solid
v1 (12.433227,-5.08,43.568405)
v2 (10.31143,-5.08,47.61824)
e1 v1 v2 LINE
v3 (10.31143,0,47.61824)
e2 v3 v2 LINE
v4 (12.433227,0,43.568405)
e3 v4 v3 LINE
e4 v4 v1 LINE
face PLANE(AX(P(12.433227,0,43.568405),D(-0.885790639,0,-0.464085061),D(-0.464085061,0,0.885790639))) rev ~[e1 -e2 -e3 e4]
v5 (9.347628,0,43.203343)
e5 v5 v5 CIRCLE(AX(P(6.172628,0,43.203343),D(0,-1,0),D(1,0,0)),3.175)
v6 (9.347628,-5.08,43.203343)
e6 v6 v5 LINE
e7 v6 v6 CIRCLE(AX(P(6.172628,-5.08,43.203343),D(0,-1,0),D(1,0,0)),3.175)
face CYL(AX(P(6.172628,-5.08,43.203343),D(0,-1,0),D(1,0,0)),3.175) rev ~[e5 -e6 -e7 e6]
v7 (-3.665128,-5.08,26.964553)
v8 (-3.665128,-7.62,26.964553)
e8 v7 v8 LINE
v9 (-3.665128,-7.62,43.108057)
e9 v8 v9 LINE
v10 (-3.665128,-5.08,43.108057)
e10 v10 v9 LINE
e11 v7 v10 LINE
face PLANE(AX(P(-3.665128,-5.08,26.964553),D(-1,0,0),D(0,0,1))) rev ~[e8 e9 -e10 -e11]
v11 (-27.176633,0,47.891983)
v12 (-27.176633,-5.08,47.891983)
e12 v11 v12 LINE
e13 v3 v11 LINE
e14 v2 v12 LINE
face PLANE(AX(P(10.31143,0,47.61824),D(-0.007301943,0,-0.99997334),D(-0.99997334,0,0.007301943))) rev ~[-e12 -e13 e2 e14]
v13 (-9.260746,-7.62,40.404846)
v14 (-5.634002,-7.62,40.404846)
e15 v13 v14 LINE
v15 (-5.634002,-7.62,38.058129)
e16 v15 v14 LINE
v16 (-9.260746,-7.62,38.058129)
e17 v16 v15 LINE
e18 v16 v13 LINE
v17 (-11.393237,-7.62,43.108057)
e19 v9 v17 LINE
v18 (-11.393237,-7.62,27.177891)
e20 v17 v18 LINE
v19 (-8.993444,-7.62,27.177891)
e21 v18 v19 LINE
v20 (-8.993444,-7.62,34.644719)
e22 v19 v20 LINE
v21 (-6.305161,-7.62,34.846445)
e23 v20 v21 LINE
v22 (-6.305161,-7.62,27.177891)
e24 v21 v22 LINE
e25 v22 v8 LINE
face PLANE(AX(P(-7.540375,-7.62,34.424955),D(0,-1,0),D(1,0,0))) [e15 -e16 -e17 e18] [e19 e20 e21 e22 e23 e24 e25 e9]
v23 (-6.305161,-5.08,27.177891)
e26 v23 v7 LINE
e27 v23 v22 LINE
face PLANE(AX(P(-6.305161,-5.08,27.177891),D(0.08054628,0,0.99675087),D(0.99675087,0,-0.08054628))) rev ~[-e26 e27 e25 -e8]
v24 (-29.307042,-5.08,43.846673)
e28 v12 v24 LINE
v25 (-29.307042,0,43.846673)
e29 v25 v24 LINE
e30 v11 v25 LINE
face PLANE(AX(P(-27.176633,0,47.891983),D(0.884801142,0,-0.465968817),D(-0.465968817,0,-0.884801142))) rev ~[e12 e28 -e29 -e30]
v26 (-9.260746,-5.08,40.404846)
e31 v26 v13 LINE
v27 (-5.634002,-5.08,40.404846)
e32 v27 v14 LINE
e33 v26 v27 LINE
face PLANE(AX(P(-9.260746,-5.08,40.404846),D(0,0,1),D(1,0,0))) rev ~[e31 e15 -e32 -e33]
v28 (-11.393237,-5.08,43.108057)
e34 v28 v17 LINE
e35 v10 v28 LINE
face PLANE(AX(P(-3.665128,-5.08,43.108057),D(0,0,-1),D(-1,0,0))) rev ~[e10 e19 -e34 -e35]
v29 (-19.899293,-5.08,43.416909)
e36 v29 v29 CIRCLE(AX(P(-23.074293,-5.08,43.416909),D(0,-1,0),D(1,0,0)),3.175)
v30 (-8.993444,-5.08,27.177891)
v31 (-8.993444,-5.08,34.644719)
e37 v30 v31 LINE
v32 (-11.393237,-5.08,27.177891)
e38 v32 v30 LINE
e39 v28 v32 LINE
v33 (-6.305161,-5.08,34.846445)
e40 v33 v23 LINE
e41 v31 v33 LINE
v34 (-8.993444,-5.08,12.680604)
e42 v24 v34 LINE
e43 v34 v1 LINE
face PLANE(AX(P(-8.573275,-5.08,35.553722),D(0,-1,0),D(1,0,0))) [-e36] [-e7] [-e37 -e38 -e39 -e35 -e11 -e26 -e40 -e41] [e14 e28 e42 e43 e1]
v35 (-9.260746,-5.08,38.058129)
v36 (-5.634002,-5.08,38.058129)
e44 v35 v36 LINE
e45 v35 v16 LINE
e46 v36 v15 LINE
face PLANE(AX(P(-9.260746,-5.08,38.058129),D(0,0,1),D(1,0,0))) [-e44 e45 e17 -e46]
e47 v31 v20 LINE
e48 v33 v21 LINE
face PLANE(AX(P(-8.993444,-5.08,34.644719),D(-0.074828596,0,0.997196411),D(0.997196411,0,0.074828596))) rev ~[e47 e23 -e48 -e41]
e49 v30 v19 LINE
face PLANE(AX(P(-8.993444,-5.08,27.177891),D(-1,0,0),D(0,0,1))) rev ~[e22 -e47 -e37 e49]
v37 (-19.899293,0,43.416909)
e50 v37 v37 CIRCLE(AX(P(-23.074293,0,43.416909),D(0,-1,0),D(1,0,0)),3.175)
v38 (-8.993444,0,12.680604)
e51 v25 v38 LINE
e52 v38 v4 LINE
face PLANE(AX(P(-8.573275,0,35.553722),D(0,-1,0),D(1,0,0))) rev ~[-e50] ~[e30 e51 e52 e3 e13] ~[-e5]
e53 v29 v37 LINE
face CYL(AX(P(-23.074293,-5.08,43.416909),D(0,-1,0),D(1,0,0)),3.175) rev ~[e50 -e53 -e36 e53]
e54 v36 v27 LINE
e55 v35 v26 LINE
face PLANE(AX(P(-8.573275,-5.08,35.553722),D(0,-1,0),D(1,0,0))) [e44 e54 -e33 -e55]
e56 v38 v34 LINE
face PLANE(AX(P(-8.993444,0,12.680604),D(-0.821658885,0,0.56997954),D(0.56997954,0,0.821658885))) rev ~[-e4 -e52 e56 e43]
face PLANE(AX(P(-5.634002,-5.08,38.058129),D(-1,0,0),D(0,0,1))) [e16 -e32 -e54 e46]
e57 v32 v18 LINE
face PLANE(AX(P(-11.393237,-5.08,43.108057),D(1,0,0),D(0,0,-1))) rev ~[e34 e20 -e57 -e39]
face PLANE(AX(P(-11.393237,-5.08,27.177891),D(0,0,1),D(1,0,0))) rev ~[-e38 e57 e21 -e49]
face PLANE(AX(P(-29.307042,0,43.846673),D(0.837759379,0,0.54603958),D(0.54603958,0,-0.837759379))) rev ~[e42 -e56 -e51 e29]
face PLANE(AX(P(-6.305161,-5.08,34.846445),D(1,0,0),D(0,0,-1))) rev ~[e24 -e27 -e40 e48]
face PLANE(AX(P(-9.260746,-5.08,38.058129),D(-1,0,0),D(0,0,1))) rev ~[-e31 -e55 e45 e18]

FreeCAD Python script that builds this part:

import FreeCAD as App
import Part
import Sketcher
Q = App.Units.Quantity


def add_polygon(sketch, points):
    """Adds a closed chain of lines whose ends are joined by coincident constraints."""
    first, n = sketch.GeometryCount, len(points)
    for a, b in zip(points, points[1:] + points[:1]):
        sketch.addGeometry(Part.LineSegment(App.Vector(*a, 0), App.Vector(*b, 0)), False)
    for i in range(n):
        sketch.addConstraint(Sketcher.Constraint("Coincident", first + i, 2, first + (i + 1) % n, 1))

doc = App.newDocument("Part")
params = doc.addObject("Spreadsheet::Sheet", "Params")
for row, (alias, value) in enumerate([
    ("sketch1_length", "0.18 in"),
    ("sketch1_length2", "1.48 in"),
    ("pad1_length", "0.2 in"),
    ("sketch2_diameter", "0.25 in"),
    ("pad2_length", "0.1 in"),
], start=1):
    params.set(f"A{row}", alias)
    params.set(f"B{row}", "=" + value)
    params.setAlias(f"B{row}", alias)

body = doc.addObject("PartDesign::Body", "Body")

sketch1 = body.newObject("Sketcher::SketchObject", "Sketch")
sketch1.AttachmentSupport = (doc.getObject("XZ_Plane"), [""])
sketch1.MapMode = "FlatFace"
add_polygon(sketch1, [(-27.2, 47.9), (-29.3, 43.8), (-9, 12.7), (12.4, 43.6), (10.3, 47.6)])
sketch1.addConstraint([
    Sketcher.Constraint("Equal", 0, 3),
    Sketcher.Constraint("Distance", 0, Q("0.18 in")),
    Sketcher.Constraint("Distance", 2, Q("1.48 in")),
    Sketcher.Constraint("DistanceY", 1, 2, 2, 2, Q("30.887801 mm")),
    Sketcher.Constraint("DistanceX", 0, 2, -1, 1, Q("29.307042 mm")),
    Sketcher.Constraint("DistanceX", -1, 1, 3, 2, Q("10.31143 mm")),
    Sketcher.Constraint("DistanceY", -1, 1, 3, 2, Q("47.61824 mm")),
    Sketcher.Constraint("DistanceY", 1, 2, 0, 2, Q("31.166069 mm")),
    Sketcher.Constraint("DistanceX", 0, 2, 2, 2, Q("41.740269 mm")),
    Sketcher.Constraint("DistanceX", 0, 2, 4, 2, Q("2.130409 mm")),
])
sketch1.setExpression("Constraints[6]", "Params.sketch1_length")
sketch1.setExpression("Constraints[7]", "Params.sketch1_length2")
pad1 = body.newObject("PartDesign::Pad", "Pad")
pad1.Profile = sketch1
pad1.setExpression("Length", "Params.pad1_length")

sketch2 = body.newObject("Sketcher::SketchObject", "Sketch001")
sketch2.AttachmentSupport = (doc.getObject("XZ_Plane"), [""])
sketch2.MapMode = "FlatFace"
sketch2.AttachmentOffset = App.Placement(App.Vector(0, 0, 0.2 * 25.4), App.Rotation())
sketch2.addGeometry([
    Part.Circle(App.Vector(6.2, 43.2, 0), App.Vector(0, 0, 1), 3.2),
    Part.Circle(App.Vector(-23.1, 43.4, 0), App.Vector(0, 0, 1), 3.2),
], False)
sketch2.addConstraint([
    Sketcher.Constraint("Equal", 0, 1),
    Sketcher.Constraint("Diameter", 0, Q("0.25 in")),
    Sketcher.Constraint("DistanceY", -1, 1, 1, 3, Q("43.416909 mm")),
    Sketcher.Constraint("DistanceX", 1, 3, 0, 3, Q("29.246921 mm")),
    Sketcher.Constraint("DistanceX", -1, 1, 0, 3, Q("6.172628 mm")),
    Sketcher.Constraint("DistanceY", -1, 1, 0, 3, Q("43.203343 mm")),
])
sketch2.setExpression("Constraints[1]", "Params.sketch2_diameter")
pocket1 = body.newObject("PartDesign::Pocket", "Pocket")
pocket1.Profile = sketch2
pocket1.Type = "ThroughAll"

sketch3 = body.newObject("Sketcher::SketchObject", "Sketch002")
sketch3.AttachmentSupport = (doc.getObject("XZ_Plane"), [""])
sketch3.MapMode = "FlatFace"
sketch3.AttachmentOffset = App.Placement(App.Vector(0, 0, 0.2 * 25.4), App.Rotation())
add_polygon(sketch3, [(-3.7, 43.1), (-11.4, 43.1), (-11.4, 27.2), (-9, 27.2), (-9, 34.6), (-6.3, 34.8), (-6.3, 27.2), (-3.7, 27)])
add_polygon(sketch3, [(-5.6, 38.1), (-9.3, 38.1), (-9.3, 40.4), (-5.6, 40.4)])
sketch3.addConstraint([
    Sketcher.Constraint("Horizontal", 0),
    Sketcher.Constraint("Vertical", 1),
    Sketcher.Constraint("Horizontal", 2),
    Sketcher.Constraint("Vertical", 3),
    Sketcher.Constraint("Vertical", 5),
    Sketcher.Constraint("Vertical", 7),
    Sketcher.Constraint("Horizontal", 8),
    Sketcher.Constraint("Vertical", 9),
    Sketcher.Constraint("Horizontal", 10),
    Sketcher.Constraint("Vertical", 11),
    Sketcher.Constraint("Horizontal", 2, 2, 5, 2),
    Sketcher.Constraint("DistanceX", 8, 2, 7, 2, Q("0.2202999 in")),
    Sketcher.Constraint("DistanceX", 0, 2, 0, 1, Q("7.728109 mm")),
    Sketcher.Constraint("DistanceY", 3, 1, 3, 2, Q("7.466828 mm")),
    Sketcher.Constraint("DistanceX", 10, 2, -1, 1, Q("5.634002 mm")),
    Sketcher.Constraint("DistanceX", 8, 2, 3, 2, Q("0.267302 mm")),
    Sketcher.Constraint("DistanceY", 4, 2, 9, 2, Q("5.5584 mm")),
    Sketcher.Constraint("Distance", 4, Q("2.695841 mm")),
    Sketcher.Constraint("Distance", 6, Q("2.648639 mm")),
    Sketcher.Constraint("DistanceX", 8, 2, 8, 1, Q("3.626744 mm")),
    Sketcher.Constraint("DistanceY", 1, 2, 1, 1, Q("15.930166 mm")),
    Sketcher.Constraint("DistanceY", 5, 2, 5, 1, Q("7.668554 mm")),
    Sketcher.Constraint("DistanceY", 9, 1, 9, 2, Q("2.346717 mm")),
    Sketcher.Constraint("DistanceY", -1, 1, 1, 2, Q("27.177891 mm")),
])
pad2 = body.newObject("PartDesign::Pad", "Pad001")
pad2.Profile = sketch3
pad2.setExpression("Length", "Params.pad2_length")

doc.recompute()
